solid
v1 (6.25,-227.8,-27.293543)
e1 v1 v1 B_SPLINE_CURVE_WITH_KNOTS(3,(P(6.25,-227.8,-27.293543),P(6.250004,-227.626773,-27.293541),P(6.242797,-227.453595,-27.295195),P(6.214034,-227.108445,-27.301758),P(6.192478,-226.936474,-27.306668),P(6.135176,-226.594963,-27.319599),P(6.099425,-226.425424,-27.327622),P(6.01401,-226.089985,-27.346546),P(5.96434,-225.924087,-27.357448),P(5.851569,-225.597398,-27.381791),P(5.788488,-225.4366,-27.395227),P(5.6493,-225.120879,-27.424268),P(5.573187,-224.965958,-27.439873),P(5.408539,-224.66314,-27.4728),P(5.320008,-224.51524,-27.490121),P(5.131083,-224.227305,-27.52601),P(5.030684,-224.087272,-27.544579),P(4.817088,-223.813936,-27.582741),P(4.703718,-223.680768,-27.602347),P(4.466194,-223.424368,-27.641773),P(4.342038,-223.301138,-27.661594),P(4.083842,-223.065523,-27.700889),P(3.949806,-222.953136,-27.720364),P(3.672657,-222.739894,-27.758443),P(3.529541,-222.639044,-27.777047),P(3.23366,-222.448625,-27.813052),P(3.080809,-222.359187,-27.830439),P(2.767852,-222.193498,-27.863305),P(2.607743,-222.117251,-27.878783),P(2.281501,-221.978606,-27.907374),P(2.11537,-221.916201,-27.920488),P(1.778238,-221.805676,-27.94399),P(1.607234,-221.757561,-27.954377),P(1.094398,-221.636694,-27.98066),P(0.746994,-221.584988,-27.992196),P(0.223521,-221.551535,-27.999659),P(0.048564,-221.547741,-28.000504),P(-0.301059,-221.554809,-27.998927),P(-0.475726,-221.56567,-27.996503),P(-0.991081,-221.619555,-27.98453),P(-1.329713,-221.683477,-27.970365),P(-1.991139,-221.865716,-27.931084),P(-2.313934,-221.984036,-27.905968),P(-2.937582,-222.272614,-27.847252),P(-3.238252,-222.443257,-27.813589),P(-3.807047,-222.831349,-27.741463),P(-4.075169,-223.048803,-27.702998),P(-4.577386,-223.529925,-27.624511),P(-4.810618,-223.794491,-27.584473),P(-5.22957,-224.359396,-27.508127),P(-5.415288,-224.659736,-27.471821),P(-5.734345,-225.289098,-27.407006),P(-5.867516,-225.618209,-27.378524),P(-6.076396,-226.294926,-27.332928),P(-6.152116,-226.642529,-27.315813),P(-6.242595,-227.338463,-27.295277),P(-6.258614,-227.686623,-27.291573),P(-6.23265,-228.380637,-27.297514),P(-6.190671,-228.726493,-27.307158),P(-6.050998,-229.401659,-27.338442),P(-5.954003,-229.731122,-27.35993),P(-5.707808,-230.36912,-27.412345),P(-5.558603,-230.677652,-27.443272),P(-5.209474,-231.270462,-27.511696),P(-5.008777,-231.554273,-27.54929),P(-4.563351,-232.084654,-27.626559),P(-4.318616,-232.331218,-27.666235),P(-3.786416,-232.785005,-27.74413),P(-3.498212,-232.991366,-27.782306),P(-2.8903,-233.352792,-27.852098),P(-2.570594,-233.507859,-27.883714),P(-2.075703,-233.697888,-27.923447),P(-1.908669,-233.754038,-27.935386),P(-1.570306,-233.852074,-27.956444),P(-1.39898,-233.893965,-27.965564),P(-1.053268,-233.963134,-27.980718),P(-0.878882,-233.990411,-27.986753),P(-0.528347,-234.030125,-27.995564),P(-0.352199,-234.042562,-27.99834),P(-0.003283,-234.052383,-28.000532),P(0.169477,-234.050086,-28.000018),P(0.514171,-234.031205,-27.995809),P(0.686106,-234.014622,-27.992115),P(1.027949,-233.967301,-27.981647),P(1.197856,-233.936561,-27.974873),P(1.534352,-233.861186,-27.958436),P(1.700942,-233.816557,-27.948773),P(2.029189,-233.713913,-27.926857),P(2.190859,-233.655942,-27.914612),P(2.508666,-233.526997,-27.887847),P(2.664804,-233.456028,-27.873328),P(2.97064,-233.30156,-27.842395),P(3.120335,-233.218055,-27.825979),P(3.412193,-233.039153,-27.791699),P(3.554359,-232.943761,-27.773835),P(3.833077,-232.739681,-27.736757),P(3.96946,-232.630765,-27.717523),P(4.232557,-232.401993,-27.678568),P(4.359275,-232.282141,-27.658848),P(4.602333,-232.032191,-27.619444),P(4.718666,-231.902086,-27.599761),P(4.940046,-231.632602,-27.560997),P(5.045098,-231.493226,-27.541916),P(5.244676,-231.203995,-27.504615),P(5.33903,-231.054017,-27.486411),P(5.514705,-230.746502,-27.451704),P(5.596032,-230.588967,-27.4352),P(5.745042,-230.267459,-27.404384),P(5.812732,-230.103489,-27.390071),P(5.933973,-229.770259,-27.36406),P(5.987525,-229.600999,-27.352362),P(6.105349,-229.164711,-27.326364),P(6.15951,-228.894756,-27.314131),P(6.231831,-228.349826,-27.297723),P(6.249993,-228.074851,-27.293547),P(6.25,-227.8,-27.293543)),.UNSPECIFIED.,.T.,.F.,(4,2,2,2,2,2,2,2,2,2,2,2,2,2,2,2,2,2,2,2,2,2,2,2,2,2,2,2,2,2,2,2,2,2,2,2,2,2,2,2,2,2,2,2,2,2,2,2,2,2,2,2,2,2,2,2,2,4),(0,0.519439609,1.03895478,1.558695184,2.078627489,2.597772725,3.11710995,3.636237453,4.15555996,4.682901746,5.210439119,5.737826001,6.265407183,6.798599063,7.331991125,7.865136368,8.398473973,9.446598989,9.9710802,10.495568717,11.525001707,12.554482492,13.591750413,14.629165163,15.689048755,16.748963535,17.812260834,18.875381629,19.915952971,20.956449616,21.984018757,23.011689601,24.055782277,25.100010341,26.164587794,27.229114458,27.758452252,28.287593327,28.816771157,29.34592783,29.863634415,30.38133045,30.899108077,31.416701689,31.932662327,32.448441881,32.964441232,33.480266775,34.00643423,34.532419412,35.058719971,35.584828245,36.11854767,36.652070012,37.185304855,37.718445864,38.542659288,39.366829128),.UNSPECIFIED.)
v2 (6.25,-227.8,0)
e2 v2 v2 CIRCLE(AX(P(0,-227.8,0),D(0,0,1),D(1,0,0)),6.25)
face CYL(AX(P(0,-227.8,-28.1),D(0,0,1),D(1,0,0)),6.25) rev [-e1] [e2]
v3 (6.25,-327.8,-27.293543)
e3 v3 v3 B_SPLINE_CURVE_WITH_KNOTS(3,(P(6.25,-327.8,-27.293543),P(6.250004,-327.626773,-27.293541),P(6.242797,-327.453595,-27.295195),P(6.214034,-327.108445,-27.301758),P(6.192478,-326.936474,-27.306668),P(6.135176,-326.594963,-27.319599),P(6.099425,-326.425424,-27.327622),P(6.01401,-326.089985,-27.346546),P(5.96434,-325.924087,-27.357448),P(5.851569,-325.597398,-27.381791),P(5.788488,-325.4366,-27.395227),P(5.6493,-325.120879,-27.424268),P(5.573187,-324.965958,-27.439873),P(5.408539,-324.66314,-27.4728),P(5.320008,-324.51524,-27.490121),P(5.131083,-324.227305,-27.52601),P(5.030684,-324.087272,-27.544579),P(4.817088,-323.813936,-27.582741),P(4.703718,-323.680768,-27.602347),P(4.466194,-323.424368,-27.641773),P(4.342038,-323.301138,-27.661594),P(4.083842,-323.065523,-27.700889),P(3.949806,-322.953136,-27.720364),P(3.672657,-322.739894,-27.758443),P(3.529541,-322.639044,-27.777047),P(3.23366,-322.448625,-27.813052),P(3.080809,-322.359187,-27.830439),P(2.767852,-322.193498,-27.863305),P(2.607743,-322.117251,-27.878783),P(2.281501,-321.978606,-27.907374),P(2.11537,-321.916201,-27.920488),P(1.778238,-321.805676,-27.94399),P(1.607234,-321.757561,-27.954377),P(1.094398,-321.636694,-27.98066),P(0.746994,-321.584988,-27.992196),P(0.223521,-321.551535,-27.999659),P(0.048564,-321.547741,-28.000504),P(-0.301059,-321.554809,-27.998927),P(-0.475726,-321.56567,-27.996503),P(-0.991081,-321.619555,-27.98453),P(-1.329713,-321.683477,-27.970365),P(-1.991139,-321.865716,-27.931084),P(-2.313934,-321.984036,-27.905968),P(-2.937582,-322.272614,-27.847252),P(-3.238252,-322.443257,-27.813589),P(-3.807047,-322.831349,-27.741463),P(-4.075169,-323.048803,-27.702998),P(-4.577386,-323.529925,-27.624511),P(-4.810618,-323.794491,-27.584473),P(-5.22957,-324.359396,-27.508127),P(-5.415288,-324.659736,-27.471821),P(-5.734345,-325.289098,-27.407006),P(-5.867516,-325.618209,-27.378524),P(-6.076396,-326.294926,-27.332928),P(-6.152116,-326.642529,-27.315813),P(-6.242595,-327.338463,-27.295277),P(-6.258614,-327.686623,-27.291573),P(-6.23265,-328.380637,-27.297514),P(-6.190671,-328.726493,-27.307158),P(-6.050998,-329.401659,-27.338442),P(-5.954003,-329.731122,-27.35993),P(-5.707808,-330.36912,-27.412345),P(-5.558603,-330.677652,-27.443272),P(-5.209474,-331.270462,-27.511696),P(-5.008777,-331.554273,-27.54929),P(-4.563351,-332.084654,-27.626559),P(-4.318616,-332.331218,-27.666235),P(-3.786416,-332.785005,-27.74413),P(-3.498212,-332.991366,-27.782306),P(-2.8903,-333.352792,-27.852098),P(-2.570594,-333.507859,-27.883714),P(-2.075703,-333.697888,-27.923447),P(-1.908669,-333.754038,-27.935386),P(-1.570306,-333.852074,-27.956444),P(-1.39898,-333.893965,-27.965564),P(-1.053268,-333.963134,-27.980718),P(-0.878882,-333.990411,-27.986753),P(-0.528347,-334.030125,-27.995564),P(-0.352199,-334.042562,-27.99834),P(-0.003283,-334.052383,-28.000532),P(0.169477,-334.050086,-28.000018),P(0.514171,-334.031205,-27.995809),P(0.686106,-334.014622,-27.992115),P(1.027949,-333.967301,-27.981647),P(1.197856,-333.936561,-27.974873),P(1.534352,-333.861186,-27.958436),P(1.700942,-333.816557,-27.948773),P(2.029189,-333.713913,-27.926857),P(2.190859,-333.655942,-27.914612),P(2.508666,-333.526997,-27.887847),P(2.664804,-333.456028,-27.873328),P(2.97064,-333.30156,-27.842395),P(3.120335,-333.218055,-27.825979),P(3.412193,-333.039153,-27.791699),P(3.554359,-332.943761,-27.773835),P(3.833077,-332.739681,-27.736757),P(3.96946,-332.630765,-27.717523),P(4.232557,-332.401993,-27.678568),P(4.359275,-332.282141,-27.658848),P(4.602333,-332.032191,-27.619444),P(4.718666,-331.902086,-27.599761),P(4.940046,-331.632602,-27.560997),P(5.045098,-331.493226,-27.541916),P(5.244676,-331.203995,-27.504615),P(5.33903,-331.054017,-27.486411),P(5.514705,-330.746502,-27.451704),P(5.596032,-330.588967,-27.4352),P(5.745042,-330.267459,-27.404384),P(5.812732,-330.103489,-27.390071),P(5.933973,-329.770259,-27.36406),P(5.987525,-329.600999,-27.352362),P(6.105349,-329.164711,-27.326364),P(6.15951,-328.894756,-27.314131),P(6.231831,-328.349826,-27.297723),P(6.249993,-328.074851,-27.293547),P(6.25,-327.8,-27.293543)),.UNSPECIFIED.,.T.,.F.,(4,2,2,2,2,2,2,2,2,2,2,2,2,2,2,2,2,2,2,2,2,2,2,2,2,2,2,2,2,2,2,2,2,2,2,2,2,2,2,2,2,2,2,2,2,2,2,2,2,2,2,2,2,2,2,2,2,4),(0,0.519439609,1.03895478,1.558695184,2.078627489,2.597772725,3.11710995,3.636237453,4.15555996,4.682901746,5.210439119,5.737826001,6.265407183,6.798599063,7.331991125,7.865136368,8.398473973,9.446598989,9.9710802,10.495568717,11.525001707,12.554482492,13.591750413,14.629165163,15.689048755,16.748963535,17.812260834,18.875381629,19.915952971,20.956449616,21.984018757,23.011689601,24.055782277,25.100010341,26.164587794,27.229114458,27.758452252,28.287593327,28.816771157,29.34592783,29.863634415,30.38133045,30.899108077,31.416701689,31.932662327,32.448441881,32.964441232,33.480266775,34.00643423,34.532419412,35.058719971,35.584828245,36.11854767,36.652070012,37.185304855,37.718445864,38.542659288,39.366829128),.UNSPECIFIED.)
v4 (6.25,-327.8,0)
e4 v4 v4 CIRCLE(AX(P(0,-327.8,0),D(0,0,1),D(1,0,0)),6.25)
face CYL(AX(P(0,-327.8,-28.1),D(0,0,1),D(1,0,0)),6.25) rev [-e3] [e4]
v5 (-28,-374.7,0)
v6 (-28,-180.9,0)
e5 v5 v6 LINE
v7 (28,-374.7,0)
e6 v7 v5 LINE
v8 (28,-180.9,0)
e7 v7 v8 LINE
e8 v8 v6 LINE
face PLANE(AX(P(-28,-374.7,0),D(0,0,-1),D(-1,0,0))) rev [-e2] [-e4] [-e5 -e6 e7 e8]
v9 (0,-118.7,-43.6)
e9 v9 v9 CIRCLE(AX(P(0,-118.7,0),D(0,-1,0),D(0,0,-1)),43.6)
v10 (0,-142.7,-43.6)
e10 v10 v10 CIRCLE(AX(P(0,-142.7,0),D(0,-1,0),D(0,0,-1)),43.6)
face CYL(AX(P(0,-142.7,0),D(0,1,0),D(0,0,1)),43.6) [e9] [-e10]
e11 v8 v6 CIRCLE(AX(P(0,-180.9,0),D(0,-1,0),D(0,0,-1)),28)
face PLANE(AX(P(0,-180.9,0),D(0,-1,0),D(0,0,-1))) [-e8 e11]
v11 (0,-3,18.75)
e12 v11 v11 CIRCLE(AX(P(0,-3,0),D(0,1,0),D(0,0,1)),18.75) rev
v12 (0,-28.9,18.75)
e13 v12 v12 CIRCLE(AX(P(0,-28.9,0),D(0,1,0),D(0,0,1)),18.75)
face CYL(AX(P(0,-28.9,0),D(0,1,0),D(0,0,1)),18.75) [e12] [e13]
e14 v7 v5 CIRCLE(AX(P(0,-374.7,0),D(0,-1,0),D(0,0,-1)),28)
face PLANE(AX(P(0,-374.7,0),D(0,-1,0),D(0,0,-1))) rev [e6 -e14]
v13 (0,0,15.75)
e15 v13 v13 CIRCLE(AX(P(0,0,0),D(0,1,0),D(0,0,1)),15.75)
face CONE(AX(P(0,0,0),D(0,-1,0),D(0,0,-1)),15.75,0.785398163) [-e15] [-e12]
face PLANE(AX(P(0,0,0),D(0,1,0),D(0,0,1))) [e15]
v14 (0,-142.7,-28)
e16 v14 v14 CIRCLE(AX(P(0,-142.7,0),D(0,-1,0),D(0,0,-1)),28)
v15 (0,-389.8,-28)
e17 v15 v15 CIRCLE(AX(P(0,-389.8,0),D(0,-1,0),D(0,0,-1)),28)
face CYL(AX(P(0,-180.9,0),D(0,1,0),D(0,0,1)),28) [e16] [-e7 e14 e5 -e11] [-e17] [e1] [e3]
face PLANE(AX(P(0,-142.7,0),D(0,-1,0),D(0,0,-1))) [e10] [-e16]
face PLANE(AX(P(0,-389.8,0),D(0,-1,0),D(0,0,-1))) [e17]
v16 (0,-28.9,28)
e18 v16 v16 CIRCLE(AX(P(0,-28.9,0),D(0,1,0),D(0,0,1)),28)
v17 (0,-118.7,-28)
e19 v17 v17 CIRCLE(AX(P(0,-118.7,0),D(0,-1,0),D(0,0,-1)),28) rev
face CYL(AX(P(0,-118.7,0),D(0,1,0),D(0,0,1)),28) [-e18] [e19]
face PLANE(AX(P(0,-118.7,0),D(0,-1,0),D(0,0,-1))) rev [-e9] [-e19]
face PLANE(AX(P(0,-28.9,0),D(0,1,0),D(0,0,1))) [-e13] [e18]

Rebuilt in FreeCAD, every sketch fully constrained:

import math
import FreeCAD as App
import Part
import Sketcher


def edges_at(feature, points):
    """Names of the edges that pass closest to the given points."""
    edges = feature.Shape.Edges
    near = lambda p: min(range(len(edges)), key=lambda i: edges[i].distToShape(Part.Vertex(*p))[0])
    return sorted({f"Edge{near(p) + 1}" for p in points})

doc = App.newDocument("Part")
body = doc.addObject("PartDesign::Body", "Body")

# Sketch on XZ plane
sketch1 = body.newObject("Sketcher::SketchObject", "Sketch")
sketch1.AttachmentSupport = (doc.getObject("XZ_Plane"), [""])
sketch1.MapMode = "FlatFace"
sketch1.addGeometry(Part.Circle(App.Vector(0, 0, 0), App.Vector(0, 0, 1), 28), False)
sketch1.addConstraint(Sketcher.Constraint("Coincident", 0, 3, -1, 1))
sketch1.addConstraint(Sketcher.Constraint("Diameter", 0, 56.0))
pad1 = body.newObject("PartDesign::Pad", "Pad")
pad1.Profile = sketch1
pad1.Length = 118.7

# Sketch on XZ plane
sketch2 = body.newObject("Sketcher::SketchObject", "Sketch001")
sketch2.AttachmentSupport = (doc.getObject("XZ_Plane"), [""])
sketch2.MapMode = "FlatFace"
sketch2.AttachmentOffset = App.Placement(App.Vector(0, 0, 118.7), App.Rotation())
sketch2.addGeometry(Part.Circle(App.Vector(0, 0, 0), App.Vector(0, 0, 1), 44), False)
sketch2.addConstraint(Sketcher.Constraint("Coincident", 0, 3, -1, 1))
sketch2.addConstraint(Sketcher.Constraint("Diameter", 0, 87.2))
pad2 = body.newObject("PartDesign::Pad", "Pad001")
pad2.Profile = sketch2
pad2.Length = 24

# Sketch on XZ plane
sketch3 = body.newObject("Sketcher::SketchObject", "Sketch002")
sketch3.AttachmentSupport = (doc.getObject("XZ_Plane"), [""])
sketch3.MapMode = "FlatFace"
sketch3.addGeometry(Part.Circle(App.Vector(0, 0, 0), App.Vector(0, 0, 1), 28), False)
sketch3.addGeometry(Part.Circle(App.Vector(0, 0, 0), App.Vector(0, 0, 1), 19), False)
sketch3.addConstraint(Sketcher.Constraint("Coincident", 0, 3, -1, 1))
sketch3.addConstraint(Sketcher.Constraint("Coincident", 1, 3, -1, 1))
sketch3.addConstraint(Sketcher.Constraint("Diameter", 0, 56.0))
sketch3.addConstraint(Sketcher.Constraint("Diameter", 1, 37.5))
pocket1 = body.newObject("PartDesign::Pocket", "Pocket")
pocket1.Profile = sketch3
pocket1.Length = 28.9
pocket1.Reversed = True
doc.recompute()

chamfer = body.newObject("PartDesign::Chamfer", "Chamfer")
chamfer.Base = (pocket1, edges_at(pocket1, [(-18.75, 0, 0)]))
chamfer.Size = 3

# Sketch on XZ plane
sketch4 = body.newObject("Sketcher::SketchObject", "Sketch003")
sketch4.AttachmentSupport = (doc.getObject("XZ_Plane"), [""])
sketch4.MapMode = "FlatFace"
sketch4.AttachmentOffset = App.Placement(App.Vector(0, 0, 142.7), App.Rotation())
sketch4.addGeometry(Part.Circle(App.Vector(0, 0, 0), App.Vector(0, 0, 1), 28), False)
sketch4.addConstraint(Sketcher.Constraint("Coincident", 0, 3, -1, 1))
sketch4.addConstraint(Sketcher.Constraint("Diameter", 0, 56.0))
pad3 = body.newObject("PartDesign::Pad", "Pad002")
pad3.Profile = sketch4
pad3.Length = 38.2

# Sketch on XZ plane
sketch5 = body.newObject("Sketcher::SketchObject", "Sketch004")
sketch5.AttachmentSupport = (doc.getObject("XZ_Plane"), [""])
sketch5.MapMode = "FlatFace"
sketch5.AttachmentOffset = App.Placement(App.Vector(0, 0, 180.9), App.Rotation())
sketch5.addGeometry(Part.LineSegment(App.Vector(28, 0, 0), App.Vector(-28, 0, 0)), False)
sketch5.addGeometry(Part.ArcOfCircle(Part.Circle(App.Vector(0, 0, 0), App.Vector(0, 0, 1), 28), math.radians(180), math.radians(360)), False)
sketch5.addConstraint(Sketcher.Constraint("Coincident", 0, 1, 1, 2))
sketch5.addConstraint(Sketcher.Constraint("Coincident", 1, 1, 0, 2))
sketch5.addConstraint(Sketcher.Constraint("Horizontal", 0))
sketch5.addConstraint(Sketcher.Constraint("Coincident", 1, 3, -1, 1))
sketch5.addConstraint(Sketcher.Constraint("PointOnObject", 0, 1, -1))
sketch5.addConstraint(Sketcher.Constraint("Radius", 1, 28.0))
pad4 = body.newObject("PartDesign::Pad", "Pad003")
pad4.Profile = sketch5
pad4.Length = 193.8

# Sketch on XZ plane
sketch6 = body.newObject("Sketcher::SketchObject", "Sketch005")
sketch6.AttachmentSupport = (doc.getObject("XZ_Plane"), [""])
sketch6.MapMode = "FlatFace"
sketch6.AttachmentOffset = App.Placement(App.Vector(0, 0, 374.7), App.Rotation())
sketch6.addGeometry(Part.Circle(App.Vector(0, 0, 0), App.Vector(0, 0, 1), 28), False)
sketch6.addConstraint(Sketcher.Constraint("Coincident", 0, 3, -1, 1))
sketch6.addConstraint(Sketcher.Constraint("Diameter", 0, 56.0))
pad5 = body.newObject("PartDesign::Pad", "Pad004")
pad5.Profile = sketch6
pad5.Length = 15.1

# Sketch on XY plane
sketch7 = body.newObject("Sketcher::SketchObject", "Sketch006")
sketch7.AttachmentSupport = (doc.getObject("XY_Plane"), [""])
sketch7.MapMode = "FlatFace"
sketch7.addGeometry(Part.Circle(App.Vector(0, -228, 0), App.Vector(0, 0, 1), 6), False)
sketch7.addGeometry(Part.Circle(App.Vector(0, -328, 0), App.Vector(0, 0, 1), 6), False)
sketch7.addConstraint(Sketcher.Constraint("Equal", 0, 1))
sketch7.addConstraint(Sketcher.Constraint("PointOnObject", 0, 3, -2))
sketch7.addConstraint(Sketcher.Constraint("PointOnObject", 1, 3, -2))
sketch7.addConstraint(Sketcher.Constraint("Diameter", 0, 12.5))
sketch7.addConstraint(Sketcher.Constraint("DistanceY", 1, 3, 0, 3, 100.0))
sketch7.addConstraint(Sketcher.Constraint("DistanceY", 0, 3, -1, 1, 227.8))
pocket2 = body.newObject("PartDesign::Pocket", "Pocket001")
pocket2.Profile = sketch7
pocket2.Length = 28.1

doc.recompute()
